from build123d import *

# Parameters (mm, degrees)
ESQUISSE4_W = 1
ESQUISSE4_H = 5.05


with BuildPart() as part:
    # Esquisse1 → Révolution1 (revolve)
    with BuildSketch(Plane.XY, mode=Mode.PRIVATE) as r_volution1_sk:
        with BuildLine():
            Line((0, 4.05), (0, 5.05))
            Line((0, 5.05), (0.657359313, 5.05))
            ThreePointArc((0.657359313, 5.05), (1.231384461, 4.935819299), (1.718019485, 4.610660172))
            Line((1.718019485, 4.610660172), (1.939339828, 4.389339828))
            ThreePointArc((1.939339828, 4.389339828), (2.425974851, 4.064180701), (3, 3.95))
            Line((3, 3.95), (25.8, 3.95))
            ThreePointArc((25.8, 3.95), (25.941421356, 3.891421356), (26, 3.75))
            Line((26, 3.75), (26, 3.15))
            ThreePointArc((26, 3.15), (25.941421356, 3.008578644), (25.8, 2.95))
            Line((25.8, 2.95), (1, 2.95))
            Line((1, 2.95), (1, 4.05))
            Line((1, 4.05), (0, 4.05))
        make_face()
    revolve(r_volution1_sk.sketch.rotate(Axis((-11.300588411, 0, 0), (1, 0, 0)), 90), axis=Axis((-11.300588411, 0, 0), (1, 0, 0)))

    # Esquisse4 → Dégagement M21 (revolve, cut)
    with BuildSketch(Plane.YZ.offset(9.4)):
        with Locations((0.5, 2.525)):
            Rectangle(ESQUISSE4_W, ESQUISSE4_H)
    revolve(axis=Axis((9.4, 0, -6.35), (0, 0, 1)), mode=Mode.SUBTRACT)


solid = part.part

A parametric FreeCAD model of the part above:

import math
import FreeCAD as App
import Part
import Sketcher

V = App.Vector
Q = App.Units.Quantity

doc = App.newDocument("Part")
params = doc.addObject("Spreadsheet::Sheet", "Params")
for row, (alias, value) in enumerate([
    ("sketch1_radius", "0.2 mm"),
    ("sketch1_radius2", "1.5 mm"),
    ("sketch1_width", "1 mm"),
    ("sketch1_width2", "24.8 mm"),
    ("sketch1_width3", "22.8 mm"),
    ("revolution_angle", "360 deg"),
    ("sketch2_width", "1 mm"),
    ("sketch2_height", "5.05 mm"),
    ("groove_angle", "360 deg"),
], start=1):
    params.set(f"A{row}", alias)
    params.set(f"B{row}", "=" + value)
    params.setAlias(f"B{row}", alias)

body = doc.addObject("PartDesign::Body", "Body")

sketch1 = body.newObject("Sketcher::SketchObject", "Sketch")
sketch1.AttachmentSupport = (doc.getObject("XY_Plane"), [""])
sketch1.MapMode = "FlatFace"
sketch1.addGeometry(Part.LineSegment(V(0, 5.05, 0), V(0, 4.05, 0)), False)
sketch1.addGeometry(Part.LineSegment(V(0, 4.05, 0), V(1, 4.05, 0)), False)
sketch1.addGeometry(Part.LineSegment(V(1, 4.05, 0), V(1, 2.95, 0)), False)
sketch1.addGeometry(Part.LineSegment(V(1, 2.95, 0), V(25.8, 2.95, 0)), False)
sketch1.addGeometry(Part.ArcOfCircle(Part.Circle(V(25.8, 3.15, 0), V(0, 0, 1), 0.2), math.radians(-90), math.radians(0)), False)
sketch1.addGeometry(Part.LineSegment(V(26, 3.15, 0), V(26, 3.75, 0)), False)
sketch1.addGeometry(Part.ArcOfCircle(Part.Circle(V(25.8, 3.75, 0), V(0, 0, 1), 0.2), math.radians(0), math.radians(90)), False)
sketch1.addGeometry(Part.LineSegment(V(25.8, 3.95, 0), V(3, 3.95, 0)), False)
sketch1.addGeometry(Part.ArcOfCircle(Part.Circle(V(3, 5.45, 0), V(0, 0, 1), 1.5), math.radians(-135), math.radians(-90)), False)
sketch1.addGeometry(Part.LineSegment(V(1.93934, 4.38934, 0), V(1.718019, 4.61066, 0)), False)
sketch1.addGeometry(Part.ArcOfCircle(Part.Circle(V(0.657359, 3.55, 0), V(0, 0, 1), 1.5), math.radians(45), math.radians(90)), False)
sketch1.addGeometry(Part.LineSegment(V(0.657359, 5.05, 0), V(0, 5.05, 0)), False)
sketch1.addConstraint(Sketcher.Constraint("Coincident", 0, 2, 1, 1))
sketch1.addConstraint(Sketcher.Constraint("Coincident", 1, 2, 2, 1))
sketch1.addConstraint(Sketcher.Constraint("Coincident", 2, 2, 3, 1))
sketch1.addConstraint(Sketcher.Constraint("Tangent", 3, 2, 4, 1))
sketch1.addConstraint(Sketcher.Constraint("Tangent", 4, 2, 5, 1))
sketch1.addConstraint(Sketcher.Constraint("Tangent", 5, 2, 6, 1))
sketch1.addConstraint(Sketcher.Constraint("Tangent", 6, 2, 7, 1))
sketch1.addConstraint(Sketcher.Constraint("Tangent", 7, 2, 8, 2))
sketch1.addConstraint(Sketcher.Constraint("Tangent", 8, 1, 9, 1))
sketch1.addConstraint(Sketcher.Constraint("Tangent", 9, 2, 10, 1))
sketch1.addConstraint(Sketcher.Constraint("Tangent", 10, 2, 11, 1))
sketch1.addConstraint(Sketcher.Constraint("Coincident", 11, 2, 0, 1))
sketch1.addConstraint(Sketcher.Constraint("Vertical", 0))
sketch1.addConstraint(Sketcher.Constraint("Horizontal", 1))
sketch1.addConstraint(Sketcher.Constraint("Vertical", 2))
sketch1.addConstraint(Sketcher.Constraint("Horizontal", 3))
sketch1.addConstraint(Sketcher.Constraint("Vertical", 5))
sketch1.addConstraint(Sketcher.Constraint("Horizontal", 7))
sketch1.addConstraint(Sketcher.Constraint("Horizontal", 11))
sketch1.addConstraint(Sketcher.Constraint("Equal", 4, 6))
sketch1.addConstraint(Sketcher.Constraint("Equal", 8, 10))
sketch1.addConstraint(Sketcher.Constraint("PointOnObject", 0, 2, -2))
sketch1.addConstraint(Sketcher.Constraint("Equal", 1, 0))
sketch1.addConstraint(Sketcher.Constraint("Radius", 4, 0.2))
sketch1.addConstraint(Sketcher.Constraint("Radius", 8, 1.5))
sketch1.addConstraint(Sketcher.Constraint("DistanceX", 1, 1, 1, 2, 1.0))
sketch1.addConstraint(Sketcher.Constraint("Angle", 9, Q("135 deg")))
sketch1.addConstraint(Sketcher.Constraint("DistanceX", 3, 1, 3, 2, 24.8))
sketch1.addConstraint(Sketcher.Constraint("DistanceX", 7, 2, 7, 1, 22.8))
sketch1.addConstraint(Sketcher.Constraint("DistanceY", 2, 2, 2, 1, 1.1))
sketch1.addConstraint(Sketcher.Constraint("DistanceY", 5, 1, 5, 2, 0.6))
sketch1.addConstraint(Sketcher.Constraint("DistanceY", -1, 1, 4, 3, 3.15))
sketch1.setExpression("Constraints[23]", "Params.sketch1_radius")
sketch1.setExpression("Constraints[24]", "Params.sketch1_radius2")
sketch1.setExpression("Constraints[25]", "Params.sketch1_width")
sketch1.setExpression("Constraints[27]", "Params.sketch1_width2")
sketch1.setExpression("Constraints[28]", "Params.sketch1_width3")
revolution = body.newObject("PartDesign::Revolution", "Revolution")
revolution.Profile = sketch1
revolution.ReferenceAxis = (sketch1, ["H_Axis"])
revolution.setExpression("Angle", "Params.revolution_angle")

sketch2 = body.newObject("Sketcher::SketchObject", "Sketch001")
sketch2.AttachmentSupport = (doc.getObject("YZ_Plane"), [""])
sketch2.MapMode = "FlatFace"
sketch2.AttachmentOffset = App.Placement(V(0, 0, 9.4), App.Rotation())
sketch2.addGeometry(Part.LineSegment(V(0, 5.05, 0), V(0, 0, 0)), False)
sketch2.addGeometry(Part.LineSegment(V(0, 0, 0), V(1, 0, 0)), False)
sketch2.addGeometry(Part.LineSegment(V(1, 0, 0), V(1, 5.05, 0)), False)
sketch2.addGeometry(Part.LineSegment(V(1, 5.05, 0), V(0, 5.05, 0)), False)
sketch2.addConstraint(Sketcher.Constraint("Coincident", 0, 2, 1, 1))
sketch2.addConstraint(Sketcher.Constraint("Coincident", 1, 2, 2, 1))
sketch2.addConstraint(Sketcher.Constraint("Coincident", 2, 2, 3, 1))
sketch2.addConstraint(Sketcher.Constraint("Coincident", 3, 2, 0, 1))
sketch2.addConstraint(Sketcher.Constraint("Vertical", 0))
sketch2.addConstraint(Sketcher.Constraint("Horizontal", 1))
sketch2.addConstraint(Sketcher.Constraint("Vertical", 2))
sketch2.addConstraint(Sketcher.Constraint("Horizontal", 3))
sketch2.addConstraint(Sketcher.Constraint("Coincident", 0, 2, -1, 1))
sketch2.addConstraint(Sketcher.Constraint("DistanceX", 1, 1, 1, 2, 1.0))
sketch2.addConstraint(Sketcher.Constraint("DistanceY", 0, 2, 0, 1, 5.05))
sketch2.setExpression("Constraints[9]", "Params.sketch2_width")
sketch2.setExpression("Constraints[10]", "Params.sketch2_height")
groove = body.newObject("PartDesign::Groove", "Groove")
groove.Profile = sketch2
groove.ReferenceAxis = (sketch2, ["V_Axis"])
groove.setExpression("Angle", "Params.groove_angle")

doc.recompute()
